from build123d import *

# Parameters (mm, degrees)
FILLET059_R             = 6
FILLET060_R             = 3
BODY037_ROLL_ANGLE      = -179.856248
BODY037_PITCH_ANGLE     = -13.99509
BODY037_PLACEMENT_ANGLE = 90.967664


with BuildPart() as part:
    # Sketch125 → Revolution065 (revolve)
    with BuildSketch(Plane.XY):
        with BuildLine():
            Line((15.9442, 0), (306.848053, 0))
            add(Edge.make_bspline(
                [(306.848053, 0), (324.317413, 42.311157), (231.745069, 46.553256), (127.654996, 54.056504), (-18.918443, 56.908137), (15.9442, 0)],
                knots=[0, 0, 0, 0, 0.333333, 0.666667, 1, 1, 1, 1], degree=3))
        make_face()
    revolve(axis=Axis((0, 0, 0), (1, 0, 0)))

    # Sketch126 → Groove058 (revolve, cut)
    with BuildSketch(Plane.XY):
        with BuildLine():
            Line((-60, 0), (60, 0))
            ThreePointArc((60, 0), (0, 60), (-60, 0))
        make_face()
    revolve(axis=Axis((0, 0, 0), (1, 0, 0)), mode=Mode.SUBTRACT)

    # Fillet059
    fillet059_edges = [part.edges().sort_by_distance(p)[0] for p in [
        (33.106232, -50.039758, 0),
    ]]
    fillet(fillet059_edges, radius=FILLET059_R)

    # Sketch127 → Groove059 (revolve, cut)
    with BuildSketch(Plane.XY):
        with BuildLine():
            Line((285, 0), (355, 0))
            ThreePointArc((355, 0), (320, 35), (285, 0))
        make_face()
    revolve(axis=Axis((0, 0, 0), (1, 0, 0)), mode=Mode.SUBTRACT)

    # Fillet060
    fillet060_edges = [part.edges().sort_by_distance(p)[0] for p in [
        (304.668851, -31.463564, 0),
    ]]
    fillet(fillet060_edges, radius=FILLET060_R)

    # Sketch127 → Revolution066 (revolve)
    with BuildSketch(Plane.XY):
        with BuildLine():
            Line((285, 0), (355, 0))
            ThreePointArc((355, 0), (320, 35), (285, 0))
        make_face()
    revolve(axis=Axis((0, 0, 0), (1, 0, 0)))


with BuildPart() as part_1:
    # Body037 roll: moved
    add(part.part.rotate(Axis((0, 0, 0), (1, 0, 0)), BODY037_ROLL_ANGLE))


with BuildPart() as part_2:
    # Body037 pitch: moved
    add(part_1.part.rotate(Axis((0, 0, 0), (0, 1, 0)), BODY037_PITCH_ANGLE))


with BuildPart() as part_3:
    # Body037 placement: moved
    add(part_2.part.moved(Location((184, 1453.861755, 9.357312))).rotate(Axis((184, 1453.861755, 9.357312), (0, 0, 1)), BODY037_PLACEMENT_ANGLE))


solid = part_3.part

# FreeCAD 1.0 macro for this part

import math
import FreeCAD as App
import Part
import Sketcher
from FreeCAD import Vector


def edges_at(feature, points):
    """Names of the edges that pass closest to the given points."""
    edges = feature.Shape.Edges
    near = lambda p: min(range(len(edges)), key=lambda i: edges[i].distToShape(Part.Vertex(*p))[0])
    return sorted({f"Edge{near(p) + 1}" for p in points})

doc = App.newDocument("Part")
params = doc.addObject("Spreadsheet::Sheet", "Params")
for row, (alias, value) in enumerate([
    ("revolution_angle", "360 deg"),
    ("sketch2_radius", "60 mm"),
    ("groove_angle", "360 deg"),
    ("fillet_radius", "6 mm"),
    ("sketch3_radius", "35 mm"),
    ("groove2_angle", "360 deg"),
    ("fillet2_radius", "3 mm"),
    ("sketch4_radius", "35 mm"),
    ("revolution2_angle", "360 deg"),
], start=1):
    params.set(f"A{row}", alias)
    params.set(f"B{row}", "=" + value)
    params.setAlias(f"B{row}", alias)

body = doc.addObject("PartDesign::Body", "Body")

# Sketch on XY plane
sketch1 = doc.addObject("Sketcher::SketchObject", "Sketch")
body.addObject(sketch1)
sketch1.AttachmentSupport = (doc.XY_Plane, [""])
sketch1.MapMode = "FlatFace"
sketch1.addGeometry(Part.LineSegment(Vector(15.9442, 0, 0), Vector(306.848053, 0, 0)), False)
sketch1.addGeometry(Part.BSplineCurve([Vector(306.848053, 0, 0), Vector(324.317413, 42.311157, 0), Vector(231.745069, 46.553256, 0), Vector(127.654996, 54.056504, 0), Vector(-18.918443, 56.908137, 0), Vector(15.9442, 0, 0)], [4, 1, 1, 4], [0, 0.333333, 0.666667, 1], False, 3, [1, 1, 1, 1, 1, 1], False), False)
sketch1.addConstraint(Sketcher.Constraint("Block", 1))
sketch1.addConstraint(Sketcher.Constraint("Coincident", 0, 1, 1, 2))
sketch1.addConstraint(Sketcher.Constraint("Coincident", 1, 1, 0, 2))
revolution = doc.addObject("PartDesign::Revolution", "Revolution")
body.addObject(revolution)
revolution.Profile = sketch1
revolution.ReferenceAxis = (sketch1, ["H_Axis"])
revolution.setExpression("Angle", "Params.revolution_angle")

# Sketch on XY plane
sketch2 = doc.addObject("Sketcher::SketchObject", "Sketch001")
body.addObject(sketch2)
sketch2.AttachmentSupport = (doc.XY_Plane, [""])
sketch2.MapMode = "FlatFace"
sketch2.addGeometry(Part.LineSegment(Vector(-60, 0, 0), Vector(60, 0, 0)), False)
sketch2.addGeometry(Part.ArcOfCircle(Part.Circle(Vector(0, 0, 0), Vector(0, 0, 1), 60), math.radians(0), math.radians(180)), False)
sketch2.addConstraint(Sketcher.Constraint("Coincident", 0, 1, 1, 2))
sketch2.addConstraint(Sketcher.Constraint("Coincident", 1, 1, 0, 2))
sketch2.addConstraint(Sketcher.Constraint("Horizontal", 0))
sketch2.addConstraint(Sketcher.Constraint("Coincident", 1, 3, -1, 1))
sketch2.addConstraint(Sketcher.Constraint("PointOnObject", 0, 1, -1))
sketch2.addConstraint(Sketcher.Constraint("Radius", 1, 60.0))
sketch2.setExpression("Constraints[5]", "Params.sketch2_radius")
groove = doc.addObject("PartDesign::Groove", "Groove")
body.addObject(groove)
groove.Profile = sketch2
groove.ReferenceAxis = (sketch2, ["H_Axis"])
groove.setExpression("Angle", "Params.groove_angle")
doc.recompute()

fillet = doc.addObject("PartDesign::Fillet", "Fillet")
body.addObject(fillet)
fillet.Base = (groove, edges_at(groove, [(33.106, -50.04, 0)]))
fillet.setExpression("Radius", "Params.fillet_radius")

# Sketch on XY plane
sketch3 = doc.addObject("Sketcher::SketchObject", "Sketch002")
body.addObject(sketch3)
sketch3.AttachmentSupport = (doc.XY_Plane, [""])
sketch3.MapMode = "FlatFace"
sketch3.addGeometry(Part.LineSegment(Vector(285, 0, 0), Vector(355, 0, 0)), False)
sketch3.addGeometry(Part.ArcOfCircle(Part.Circle(Vector(320, 0, 0), Vector(0, 0, 1), 35), math.radians(0), math.radians(180)), False)
sketch3.addConstraint(Sketcher.Constraint("Coincident", 0, 1, 1, 2))
sketch3.addConstraint(Sketcher.Constraint("Coincident", 1, 1, 0, 2))
sketch3.addConstraint(Sketcher.Constraint("Horizontal", 0))
sketch3.addConstraint(Sketcher.Constraint("PointOnObject", 1, 3, -1))
sketch3.addConstraint(Sketcher.Constraint("PointOnObject", 0, 1, -1))
sketch3.addConstraint(Sketcher.Constraint("Radius", 1, 35.0))
sketch3.addConstraint(Sketcher.Constraint("DistanceX", -1, 1, 1, 3, 320.0))
sketch3.setExpression("Constraints[5]", "Params.sketch3_radius")
groove2 = doc.addObject("PartDesign::Groove", "Groove001")
body.addObject(groove2)
groove2.Profile = sketch3
groove2.ReferenceAxis = (sketch3, ["H_Axis"])
groove2.setExpression("Angle", "Params.groove2_angle")
doc.recompute()

fillet2 = doc.addObject("PartDesign::Fillet", "Fillet001")
body.addObject(fillet2)
fillet2.Base = (groove2, edges_at(groove2, [(304.669, -31.464, 0)]))
fillet2.setExpression("Radius", "Params.fillet2_radius")

# Sketch on XY plane
sketch4 = doc.addObject("Sketcher::SketchObject", "Sketch003")
body.addObject(sketch4)
sketch4.AttachmentSupport = (doc.XY_Plane, [""])
sketch4.MapMode = "FlatFace"
sketch4.addGeometry(Part.LineSegment(Vector(285, 0, 0), Vector(355, 0, 0)), False)
sketch4.addGeometry(Part.ArcOfCircle(Part.Circle(Vector(320, 0, 0), Vector(0, 0, 1), 35), math.radians(0), math.radians(180)), False)
sketch4.addConstraint(Sketcher.Constraint("Coincident", 0, 1, 1, 2))
sketch4.addConstraint(Sketcher.Constraint("Coincident", 1, 1, 0, 2))
sketch4.addConstraint(Sketcher.Constraint("Horizontal", 0))
sketch4.addConstraint(Sketcher.Constraint("PointOnObject", 1, 3, -1))
sketch4.addConstraint(Sketcher.Constraint("PointOnObject", 0, 1, -1))
sketch4.addConstraint(Sketcher.Constraint("Radius", 1, 35.0))
sketch4.addConstraint(Sketcher.Constraint("DistanceX", -1, 1, 1, 3, 320.0))
sketch4.setExpression("Constraints[5]", "Params.sketch4_radius")
revolution2 = doc.addObject("PartDesign::Revolution", "Revolution001")
body.addObject(revolution2)
revolution2.Profile = sketch4
revolution2.ReferenceAxis = (sketch4, ["H_Axis"])
revolution2.setExpression("Angle", "Params.revolution2_angle")
body2 = doc.addObject("PartDesign::Body", "Body001")
doc.recompute()

body.Placement = App.Placement(Vector(0, 0, 0), App.Rotation(Vector(1, 0, 0), 180.143752))
boolean = doc.addObject("PartDesign::Boolean", "Boolean")
body2.addObject(boolean)
boolean.Type = "Fuse"
boolean.addObjects([body])
body3 = doc.addObject("PartDesign::Body", "Body002")
doc.recompute()

body2.Placement = App.Placement(Vector(0, 0, 0), App.Rotation(Vector(0, 1, 0), 346.00491))
boolean2 = doc.addObject("PartDesign::Boolean", "Boolean001")
body3.addObject(boolean2)
boolean2.Type = "Fuse"
boolean2.addObjects([body2])
body4 = doc.addObject("PartDesign::Body", "Body003")
doc.recompute()

body3.Placement = App.Placement(Vector(184, 1453.861755, 9.357312), App.Rotation(Vector(0, 0, 1), 90.967664))
boolean3 = doc.addObject("PartDesign::Boolean", "Boolean002")
body4.addObject(boolean3)
boolean3.Type = "Fuse"
boolean3.addObjects([body3])

doc.recompute()
